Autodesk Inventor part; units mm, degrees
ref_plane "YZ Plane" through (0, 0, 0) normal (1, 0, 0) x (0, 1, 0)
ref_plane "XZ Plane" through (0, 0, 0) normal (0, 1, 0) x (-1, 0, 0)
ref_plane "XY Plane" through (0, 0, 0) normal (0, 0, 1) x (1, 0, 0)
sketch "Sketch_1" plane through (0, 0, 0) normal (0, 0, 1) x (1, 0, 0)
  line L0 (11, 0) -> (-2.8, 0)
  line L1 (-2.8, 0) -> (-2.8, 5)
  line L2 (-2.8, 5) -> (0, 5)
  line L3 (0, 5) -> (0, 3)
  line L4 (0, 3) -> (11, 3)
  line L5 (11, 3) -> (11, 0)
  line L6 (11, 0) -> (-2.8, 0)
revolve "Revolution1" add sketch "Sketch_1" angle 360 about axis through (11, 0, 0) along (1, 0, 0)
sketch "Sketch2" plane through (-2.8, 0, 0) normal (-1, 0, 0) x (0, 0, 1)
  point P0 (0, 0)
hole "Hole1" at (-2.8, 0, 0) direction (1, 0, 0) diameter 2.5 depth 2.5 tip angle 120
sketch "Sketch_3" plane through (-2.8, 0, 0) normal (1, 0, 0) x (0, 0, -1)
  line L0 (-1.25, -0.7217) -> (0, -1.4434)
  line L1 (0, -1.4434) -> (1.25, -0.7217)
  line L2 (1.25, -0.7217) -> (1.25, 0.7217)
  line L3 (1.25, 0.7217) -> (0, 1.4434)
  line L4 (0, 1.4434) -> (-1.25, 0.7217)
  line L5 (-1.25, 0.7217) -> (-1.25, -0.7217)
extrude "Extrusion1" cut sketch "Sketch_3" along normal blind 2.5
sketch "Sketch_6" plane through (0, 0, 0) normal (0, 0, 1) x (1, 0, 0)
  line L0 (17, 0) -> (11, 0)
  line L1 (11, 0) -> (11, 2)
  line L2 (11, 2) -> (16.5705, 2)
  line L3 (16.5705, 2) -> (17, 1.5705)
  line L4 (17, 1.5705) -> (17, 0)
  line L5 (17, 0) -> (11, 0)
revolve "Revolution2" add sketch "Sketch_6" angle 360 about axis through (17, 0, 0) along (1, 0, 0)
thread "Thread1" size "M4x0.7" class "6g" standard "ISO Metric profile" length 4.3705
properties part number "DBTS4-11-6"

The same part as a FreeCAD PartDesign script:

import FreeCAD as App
import Part
import Sketcher

V = App.Vector
Q = App.Units.Quantity

doc = App.newDocument("Part")
params = doc.addObject("Spreadsheet::Sheet", "Params")
for row, (alias, value) in enumerate([
    ("sketch1_width", "11 mm"),
    ("sketch1_height", "3 mm"),
    ("sketch1_height2", "2 mm"),
    ("sketch1_width2", "13.8 mm"),
    ("revolution_angle", "360 deg"),
    ("sketch2_diameter", "2.5 mm"),
    ("hole_diameter", "2.5 mm"),
    ("hole_depth", "2.5 mm"),
    ("pocket1_length", "2.5 mm"),
    ("sketch4_width", "6 mm"),
    ("sketch4_height", "2 mm"),
    ("revolution2_angle", "360 deg"),
], start=1):
    params.set(f"A{row}", alias)
    params.set(f"B{row}", "=" + value)
    params.setAlias(f"B{row}", alias)

body = doc.addObject("PartDesign::Body", "Body")

# Sketch on XY plane
sketch1 = body.newObject("Sketcher::SketchObject", "Sketch")
sketch1.AttachmentSupport = (doc.getObject("XY_Plane"), [""])
sketch1.MapMode = "FlatFace"
sketch1.addGeometry(Part.LineSegment(V(-2.8, 0, 0), V(11, 0, 0)), False)
sketch1.addGeometry(Part.LineSegment(V(11, 0, 0), V(11, 3, 0)), False)
sketch1.addGeometry(Part.LineSegment(V(11, 3, 0), V(0, 3, 0)), False)
sketch1.addGeometry(Part.LineSegment(V(0, 3, 0), V(0, 5, 0)), False)
sketch1.addGeometry(Part.LineSegment(V(0, 5, 0), V(-2.8, 5, 0)), False)
sketch1.addGeometry(Part.LineSegment(V(-2.8, 5, 0), V(-2.8, 0, 0)), False)
sketch1.addConstraint(Sketcher.Constraint("Coincident", 0, 2, 1, 1))
sketch1.addConstraint(Sketcher.Constraint("Coincident", 1, 2, 2, 1))
sketch1.addConstraint(Sketcher.Constraint("Coincident", 2, 2, 3, 1))
sketch1.addConstraint(Sketcher.Constraint("Coincident", 3, 2, 4, 1))
sketch1.addConstraint(Sketcher.Constraint("Coincident", 4, 2, 5, 1))
sketch1.addConstraint(Sketcher.Constraint("Coincident", 5, 2, 0, 1))
sketch1.addConstraint(Sketcher.Constraint("Horizontal", 0))
sketch1.addConstraint(Sketcher.Constraint("Vertical", 1))
sketch1.addConstraint(Sketcher.Constraint("Horizontal", 2))
sketch1.addConstraint(Sketcher.Constraint("Vertical", 3))
sketch1.addConstraint(Sketcher.Constraint("Horizontal", 4))
sketch1.addConstraint(Sketcher.Constraint("Vertical", 5))
sketch1.addConstraint(Sketcher.Constraint("PointOnObject", 0, 2, -1))
sketch1.addConstraint(Sketcher.Constraint("PointOnObject", 2, 2, -2))
sketch1.addConstraint(Sketcher.Constraint("DistanceX", 2, 2, 2, 1, Q("11 mm")))
sketch1.addConstraint(Sketcher.Constraint("DistanceY", 1, 1, 1, 2, Q("3 mm")))
sketch1.addConstraint(Sketcher.Constraint("DistanceY", 3, 1, 3, 2, Q("2 mm")))
sketch1.addConstraint(Sketcher.Constraint("DistanceX", 0, 1, 0, 2, Q("13.8 mm")))
sketch1.setExpression("Constraints[14]", "Params.sketch1_width")
sketch1.setExpression("Constraints[15]", "Params.sketch1_height")
sketch1.setExpression("Constraints[16]", "Params.sketch1_height2")
sketch1.setExpression("Constraints[17]", "Params.sketch1_width2")
revolution = body.newObject("PartDesign::Revolution", "Revolution")
revolution.Profile = sketch1
revolution.ReferenceAxis = (sketch1, ["H_Axis"])
revolution.setExpression("Angle", "Params.revolution_angle")

# Sketch on YZ plane
sketch2 = body.newObject("Sketcher::SketchObject", "Sketch001")
sketch2.AttachmentSupport = (doc.getObject("YZ_Plane"), [""])
sketch2.MapMode = "FlatFace"
sketch2.AttachmentOffset = App.Placement(V(0, 0, -2.8), App.Rotation())
sketch2.addGeometry(Part.Circle(V(0, 0, 0), V(0, 0, 1), 1.25), False)
sketch2.addConstraint(Sketcher.Constraint("Coincident", 0, 3, -1, 1))
sketch2.addConstraint(Sketcher.Constraint("Diameter", 0, Q("2.5 mm")))
sketch2.setExpression("Constraints[1]", "Params.sketch2_diameter")
doc.recompute()
hole = body.newObject("PartDesign::Hole", "Hole")
hole.Profile = sketch2
hole.ThreadType = "None"
hole.setExpression("Diameter", "Params.hole_diameter")
hole.DepthType = "Dimension"
hole.setExpression("Depth", "Params.hole_depth")
hole.DrillPoint = "Angled"
hole.DrillPointAngle = 120
hole.Reversed = True

# Sketch on YZ plane
sketch3 = body.newObject("Sketcher::SketchObject", "Sketch002")
sketch3.AttachmentSupport = (doc.getObject("YZ_Plane"), [""])
sketch3.MapMode = "FlatFace"
sketch3.AttachmentOffset = App.Placement(V(0, 0, -2.8), App.Rotation())
sketch3.addGeometry(Part.LineSegment(V(0.7217, 1.25, 0), V(-0.7217, 1.25, 0)), False)
sketch3.addGeometry(Part.LineSegment(V(-0.7217, 1.25, 0), V(-1.4434, 0, 0)), False)
sketch3.addGeometry(Part.LineSegment(V(-1.4434, 0, 0), V(-0.7217, -1.25, 0)), False)
sketch3.addGeometry(Part.LineSegment(V(-0.7217, -1.25, 0), V(0.7217, -1.25, 0)), False)
sketch3.addGeometry(Part.LineSegment(V(0.7217, -1.25, 0), V(1.4434, 0, 0)), False)
sketch3.addGeometry(Part.LineSegment(V(1.4434, 0, 0), V(0.7217, 1.25, 0)), False)
sketch3.addConstraint(Sketcher.Constraint("Coincident", 0, 2, 1, 1))
sketch3.addConstraint(Sketcher.Constraint("Coincident", 1, 2, 2, 1))
sketch3.addConstraint(Sketcher.Constraint("Coincident", 2, 2, 3, 1))
sketch3.addConstraint(Sketcher.Constraint("Coincident", 3, 2, 4, 1))
sketch3.addConstraint(Sketcher.Constraint("Coincident", 4, 2, 5, 1))
sketch3.addConstraint(Sketcher.Constraint("Coincident", 5, 2, 0, 1))
sketch3.addConstraint(Sketcher.Constraint("Horizontal", 0))
sketch3.addConstraint(Sketcher.Constraint("Horizontal", 3))
sketch3.addConstraint(Sketcher.Constraint("Symmetric", 0, 2, 3, 2, -1, 1))
sketch3.addConstraint(Sketcher.Constraint("Symmetric", 1, 2, 4, 2, -1, 1))
sketch3.addConstraint(Sketcher.Constraint("PointOnObject", 1, 2, -1))
sketch3.addConstraint(Sketcher.Constraint("Parallel", 2, 5))
sketch3.addConstraint(Sketcher.Constraint("Vertical", 0, 2, 2, 2))
sketch3.addConstraint(Sketcher.Constraint("Angle", 1, Q("-120.0004 deg")))
sketch3.addConstraint(Sketcher.Constraint("DistanceY", 2, 2, 0, 2, Q("2.5 mm")))
sketch3.addConstraint(Sketcher.Constraint("DistanceX", 0, 2, 0, 1, Q("1.4434 mm")))
pocket1 = body.newObject("PartDesign::Pocket", "Pocket")
pocket1.Profile = sketch3
pocket1.setExpression("Length", "Params.pocket1_length")
pocket1.Reversed = True

# Sketch on XY plane
sketch4 = body.newObject("Sketcher::SketchObject", "Sketch003")
sketch4.AttachmentSupport = (doc.getObject("XY_Plane"), [""])
sketch4.MapMode = "FlatFace"
sketch4.addGeometry(Part.LineSegment(V(11, 0, 0), V(17, 0, 0)), False)
sketch4.addGeometry(Part.LineSegment(V(17, 0, 0), V(17, 1.5705, 0)), False)
sketch4.addGeometry(Part.LineSegment(V(17, 1.5705, 0), V(16.5705, 2, 0)), False)
sketch4.addGeometry(Part.LineSegment(V(16.5705, 2, 0), V(11, 2, 0)), False)
sketch4.addGeometry(Part.LineSegment(V(11, 2, 0), V(11, 0, 0)), False)
sketch4.addConstraint(Sketcher.Constraint("Coincident", 0, 2, 1, 1))
sketch4.addConstraint(Sketcher.Constraint("Coincident", 1, 2, 2, 1))
sketch4.addConstraint(Sketcher.Constraint("Coincident", 2, 2, 3, 1))
sketch4.addConstraint(Sketcher.Constraint("Coincident", 3, 2, 4, 1))
sketch4.addConstraint(Sketcher.Constraint("Coincident", 4, 2, 0, 1))
sketch4.addConstraint(Sketcher.Constraint("Horizontal", 0))
sketch4.addConstraint(Sketcher.Constraint("Vertical", 1))
sketch4.addConstraint(Sketcher.Constraint("Horizontal", 3))
sketch4.addConstraint(Sketcher.Constraint("Vertical", 4))
sketch4.addConstraint(Sketcher.Constraint("PointOnObject", 0, 2, -1))
sketch4.addConstraint(Sketcher.Constraint("DistanceX", 0, 1, 0, 2, Q("6 mm")))
sketch4.addConstraint(Sketcher.Constraint("DistanceY", 4, 2, 4, 1, Q("2 mm")))
sketch4.addConstraint(Sketcher.Constraint("Angle", 2, Q("135 deg")))
sketch4.addConstraint(Sketcher.Constraint("DistanceX", -1, 1, 0, 2, Q("17 mm")))
sketch4.addConstraint(Sketcher.Constraint("DistanceX", 3, 2, 3, 1, Q("5.5705 mm")))
sketch4.setExpression("Constraints[10]", "Params.sketch4_width")
sketch4.setExpression("Constraints[11]", "Params.sketch4_height")
revolution2 = body.newObject("PartDesign::Revolution", "Revolution001")
revolution2.Profile = sketch4
revolution2.ReferenceAxis = (sketch4, ["H_Axis"])
revolution2.setExpression("Angle", "Params.revolution2_angle")

doc.recompute()
